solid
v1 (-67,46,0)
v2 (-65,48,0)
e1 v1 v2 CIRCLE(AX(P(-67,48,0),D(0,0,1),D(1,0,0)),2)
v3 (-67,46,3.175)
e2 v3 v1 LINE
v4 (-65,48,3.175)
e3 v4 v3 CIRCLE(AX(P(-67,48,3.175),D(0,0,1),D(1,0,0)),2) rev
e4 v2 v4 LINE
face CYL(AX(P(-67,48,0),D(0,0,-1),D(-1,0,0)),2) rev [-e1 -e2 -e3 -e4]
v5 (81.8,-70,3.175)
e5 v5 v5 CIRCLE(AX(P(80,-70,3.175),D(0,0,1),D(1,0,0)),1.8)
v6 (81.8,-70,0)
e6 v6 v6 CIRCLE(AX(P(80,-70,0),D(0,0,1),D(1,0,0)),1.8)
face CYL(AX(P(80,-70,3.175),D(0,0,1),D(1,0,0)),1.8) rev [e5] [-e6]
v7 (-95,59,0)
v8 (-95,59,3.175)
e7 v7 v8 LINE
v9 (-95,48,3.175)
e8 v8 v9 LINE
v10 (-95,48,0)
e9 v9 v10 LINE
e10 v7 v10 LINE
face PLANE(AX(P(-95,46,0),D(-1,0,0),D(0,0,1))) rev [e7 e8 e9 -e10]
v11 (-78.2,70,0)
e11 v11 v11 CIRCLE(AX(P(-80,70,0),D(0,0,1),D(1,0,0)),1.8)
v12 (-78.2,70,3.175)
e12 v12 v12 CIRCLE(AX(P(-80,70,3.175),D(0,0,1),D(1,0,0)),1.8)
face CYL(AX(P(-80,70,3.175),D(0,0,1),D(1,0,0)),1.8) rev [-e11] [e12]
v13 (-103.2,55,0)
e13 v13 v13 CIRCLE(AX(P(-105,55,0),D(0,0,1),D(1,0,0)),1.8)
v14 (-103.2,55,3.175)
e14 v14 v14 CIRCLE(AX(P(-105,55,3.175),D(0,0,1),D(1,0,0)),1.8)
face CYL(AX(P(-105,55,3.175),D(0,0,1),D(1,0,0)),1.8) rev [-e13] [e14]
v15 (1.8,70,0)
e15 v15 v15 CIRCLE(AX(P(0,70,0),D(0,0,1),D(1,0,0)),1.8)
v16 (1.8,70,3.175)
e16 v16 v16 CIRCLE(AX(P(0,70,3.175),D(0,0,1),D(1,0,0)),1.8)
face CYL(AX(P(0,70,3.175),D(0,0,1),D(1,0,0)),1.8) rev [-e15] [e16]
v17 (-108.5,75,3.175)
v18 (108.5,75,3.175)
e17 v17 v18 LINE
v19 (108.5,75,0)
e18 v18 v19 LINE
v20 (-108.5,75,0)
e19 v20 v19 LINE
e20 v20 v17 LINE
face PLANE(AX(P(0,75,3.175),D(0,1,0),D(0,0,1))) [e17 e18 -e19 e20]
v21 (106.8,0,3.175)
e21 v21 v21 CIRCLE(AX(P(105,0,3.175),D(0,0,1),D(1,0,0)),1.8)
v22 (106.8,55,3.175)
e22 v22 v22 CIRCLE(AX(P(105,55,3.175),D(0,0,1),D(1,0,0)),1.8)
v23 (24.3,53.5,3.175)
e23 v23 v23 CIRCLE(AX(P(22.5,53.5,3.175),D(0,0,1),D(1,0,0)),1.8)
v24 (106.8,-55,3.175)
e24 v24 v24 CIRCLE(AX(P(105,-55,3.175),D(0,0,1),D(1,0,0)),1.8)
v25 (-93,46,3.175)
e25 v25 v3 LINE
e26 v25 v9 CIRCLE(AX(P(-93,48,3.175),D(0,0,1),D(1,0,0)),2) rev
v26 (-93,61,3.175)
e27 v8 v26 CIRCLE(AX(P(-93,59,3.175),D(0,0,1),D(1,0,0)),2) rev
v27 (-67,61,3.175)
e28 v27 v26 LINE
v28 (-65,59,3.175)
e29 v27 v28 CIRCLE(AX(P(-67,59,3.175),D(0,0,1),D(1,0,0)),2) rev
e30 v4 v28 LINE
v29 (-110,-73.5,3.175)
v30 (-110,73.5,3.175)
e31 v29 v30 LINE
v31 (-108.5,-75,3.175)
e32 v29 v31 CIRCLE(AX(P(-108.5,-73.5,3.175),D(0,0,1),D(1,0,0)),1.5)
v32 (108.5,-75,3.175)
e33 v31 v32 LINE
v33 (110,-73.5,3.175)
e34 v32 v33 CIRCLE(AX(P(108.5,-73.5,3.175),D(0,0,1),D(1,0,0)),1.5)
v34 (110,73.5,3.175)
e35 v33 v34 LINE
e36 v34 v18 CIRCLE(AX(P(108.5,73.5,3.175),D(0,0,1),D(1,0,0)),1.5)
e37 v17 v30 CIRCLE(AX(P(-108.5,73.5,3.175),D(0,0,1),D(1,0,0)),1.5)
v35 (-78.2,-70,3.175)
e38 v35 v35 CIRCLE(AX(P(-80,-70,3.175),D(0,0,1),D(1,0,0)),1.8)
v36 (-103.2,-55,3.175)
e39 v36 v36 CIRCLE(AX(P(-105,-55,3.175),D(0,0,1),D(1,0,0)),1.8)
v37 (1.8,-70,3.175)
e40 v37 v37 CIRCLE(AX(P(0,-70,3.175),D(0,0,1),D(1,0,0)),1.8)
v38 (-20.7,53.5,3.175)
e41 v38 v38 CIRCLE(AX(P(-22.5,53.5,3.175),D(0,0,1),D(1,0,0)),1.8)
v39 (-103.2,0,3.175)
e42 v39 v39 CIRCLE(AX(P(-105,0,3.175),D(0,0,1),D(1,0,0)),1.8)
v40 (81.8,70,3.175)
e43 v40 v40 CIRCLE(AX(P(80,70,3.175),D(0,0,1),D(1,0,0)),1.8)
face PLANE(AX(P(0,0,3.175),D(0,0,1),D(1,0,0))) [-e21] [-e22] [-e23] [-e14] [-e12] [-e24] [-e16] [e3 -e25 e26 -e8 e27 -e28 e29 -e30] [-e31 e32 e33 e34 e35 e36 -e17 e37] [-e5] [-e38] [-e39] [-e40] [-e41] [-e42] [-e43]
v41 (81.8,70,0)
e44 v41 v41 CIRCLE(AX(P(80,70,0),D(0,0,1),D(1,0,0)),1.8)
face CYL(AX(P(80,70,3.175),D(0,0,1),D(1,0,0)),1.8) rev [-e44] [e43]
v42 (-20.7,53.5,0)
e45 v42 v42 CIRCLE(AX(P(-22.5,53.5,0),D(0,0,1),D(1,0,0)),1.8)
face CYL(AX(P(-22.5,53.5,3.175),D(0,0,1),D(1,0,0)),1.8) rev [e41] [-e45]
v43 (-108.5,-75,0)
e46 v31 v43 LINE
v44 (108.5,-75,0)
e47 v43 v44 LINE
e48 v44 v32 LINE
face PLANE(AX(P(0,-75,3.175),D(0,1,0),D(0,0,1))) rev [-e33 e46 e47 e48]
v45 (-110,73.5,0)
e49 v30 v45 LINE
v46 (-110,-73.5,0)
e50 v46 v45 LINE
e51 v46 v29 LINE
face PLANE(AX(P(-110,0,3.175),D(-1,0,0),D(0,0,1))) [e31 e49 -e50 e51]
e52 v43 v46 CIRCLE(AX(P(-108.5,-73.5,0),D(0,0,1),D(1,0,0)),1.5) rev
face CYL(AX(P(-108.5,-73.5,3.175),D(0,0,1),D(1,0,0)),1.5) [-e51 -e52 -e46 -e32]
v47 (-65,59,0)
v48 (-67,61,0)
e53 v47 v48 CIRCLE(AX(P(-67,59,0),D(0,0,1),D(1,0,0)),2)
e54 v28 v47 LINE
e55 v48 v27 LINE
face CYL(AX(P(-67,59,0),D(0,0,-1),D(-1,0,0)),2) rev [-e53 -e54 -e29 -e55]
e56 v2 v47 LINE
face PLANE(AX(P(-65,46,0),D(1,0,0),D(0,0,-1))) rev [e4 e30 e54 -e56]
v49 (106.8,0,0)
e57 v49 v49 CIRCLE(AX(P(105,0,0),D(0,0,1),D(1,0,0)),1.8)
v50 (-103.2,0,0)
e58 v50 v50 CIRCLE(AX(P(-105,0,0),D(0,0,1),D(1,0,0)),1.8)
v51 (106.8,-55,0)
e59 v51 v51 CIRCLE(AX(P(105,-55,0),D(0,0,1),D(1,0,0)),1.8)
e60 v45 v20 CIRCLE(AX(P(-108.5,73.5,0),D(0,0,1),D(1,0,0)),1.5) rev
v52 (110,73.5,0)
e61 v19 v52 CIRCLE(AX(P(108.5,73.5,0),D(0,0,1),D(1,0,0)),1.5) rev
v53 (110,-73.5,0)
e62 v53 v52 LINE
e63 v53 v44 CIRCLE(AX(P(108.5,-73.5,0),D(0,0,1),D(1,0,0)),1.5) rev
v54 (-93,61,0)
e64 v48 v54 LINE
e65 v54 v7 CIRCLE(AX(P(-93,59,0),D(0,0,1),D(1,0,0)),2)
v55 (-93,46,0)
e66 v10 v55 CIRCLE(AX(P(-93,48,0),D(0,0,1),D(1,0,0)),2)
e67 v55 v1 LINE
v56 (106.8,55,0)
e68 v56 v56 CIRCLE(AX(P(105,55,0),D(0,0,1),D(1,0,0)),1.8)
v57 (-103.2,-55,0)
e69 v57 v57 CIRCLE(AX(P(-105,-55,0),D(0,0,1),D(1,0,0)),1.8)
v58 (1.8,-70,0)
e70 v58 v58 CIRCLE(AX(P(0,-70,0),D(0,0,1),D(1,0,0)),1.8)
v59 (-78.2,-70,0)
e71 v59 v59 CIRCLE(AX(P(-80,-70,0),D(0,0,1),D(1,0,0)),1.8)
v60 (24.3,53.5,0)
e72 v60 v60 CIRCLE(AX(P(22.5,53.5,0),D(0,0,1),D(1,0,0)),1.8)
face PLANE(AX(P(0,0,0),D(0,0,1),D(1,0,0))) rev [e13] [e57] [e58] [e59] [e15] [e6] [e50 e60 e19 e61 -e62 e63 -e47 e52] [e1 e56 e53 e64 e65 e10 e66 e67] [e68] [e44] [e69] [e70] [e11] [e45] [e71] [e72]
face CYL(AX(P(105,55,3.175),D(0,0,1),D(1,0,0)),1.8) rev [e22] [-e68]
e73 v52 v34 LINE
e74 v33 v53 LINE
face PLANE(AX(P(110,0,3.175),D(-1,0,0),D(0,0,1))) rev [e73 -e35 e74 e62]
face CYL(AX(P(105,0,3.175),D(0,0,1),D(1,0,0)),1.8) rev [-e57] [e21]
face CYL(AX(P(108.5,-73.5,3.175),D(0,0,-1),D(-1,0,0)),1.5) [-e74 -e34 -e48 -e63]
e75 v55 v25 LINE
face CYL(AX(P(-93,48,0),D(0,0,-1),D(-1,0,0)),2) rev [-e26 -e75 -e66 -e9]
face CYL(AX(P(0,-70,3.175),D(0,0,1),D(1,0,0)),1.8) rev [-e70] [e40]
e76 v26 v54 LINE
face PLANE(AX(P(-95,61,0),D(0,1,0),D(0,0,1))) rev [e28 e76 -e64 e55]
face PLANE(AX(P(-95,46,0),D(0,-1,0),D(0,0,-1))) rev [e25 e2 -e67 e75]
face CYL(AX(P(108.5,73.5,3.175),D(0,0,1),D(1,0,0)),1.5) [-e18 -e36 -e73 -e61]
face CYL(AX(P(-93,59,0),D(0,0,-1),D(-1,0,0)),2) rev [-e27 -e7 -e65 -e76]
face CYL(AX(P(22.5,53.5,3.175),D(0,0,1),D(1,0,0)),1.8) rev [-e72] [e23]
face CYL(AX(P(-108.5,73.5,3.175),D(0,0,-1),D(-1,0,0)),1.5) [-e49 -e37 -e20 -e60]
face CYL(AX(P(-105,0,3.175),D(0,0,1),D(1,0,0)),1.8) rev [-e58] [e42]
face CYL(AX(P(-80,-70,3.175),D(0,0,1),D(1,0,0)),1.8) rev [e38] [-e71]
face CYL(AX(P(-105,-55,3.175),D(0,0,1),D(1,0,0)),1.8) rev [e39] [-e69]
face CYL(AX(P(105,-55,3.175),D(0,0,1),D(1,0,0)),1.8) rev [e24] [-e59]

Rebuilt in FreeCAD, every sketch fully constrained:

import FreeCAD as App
import Part
import Sketcher
from FreeCAD import Vector


def edges_at(feature, points):
    """Names of the edges that pass closest to the given points."""
    edges = feature.Shape.Edges
    near = lambda p: min(range(len(edges)), key=lambda i: edges[i].distToShape(Part.Vertex(*p))[0])
    return sorted({f"Edge{near(p) + 1}" for p in points})

doc = App.newDocument("Part")
body = doc.addObject("PartDesign::Body", "Body")

sketch1 = body.newObject("Sketcher::SketchObject", "Sketch")
sketch1.AttachmentSupport = (doc.getObject("XY_Plane"), [""])
sketch1.MapMode = "FlatFace"
sketch1.addGeometry([
    Part.LineSegment(Vector(-110, 75, 0), Vector(-110, -75, 0)),
    Part.LineSegment(Vector(-110, -75, 0), Vector(110, -75, 0)),
    Part.LineSegment(Vector(110, -75, 0), Vector(110, 75, 0)),
    Part.LineSegment(Vector(110, 75, 0), Vector(-110, 75, 0)),
], False)
sketch1.addConstraint([
    Sketcher.Constraint("Coincident", 0, 2, 1, 1),
    Sketcher.Constraint("Coincident", 1, 2, 2, 1),
    Sketcher.Constraint("Coincident", 2, 2, 3, 1),
    Sketcher.Constraint("Coincident", 3, 2, 0, 1),
    Sketcher.Constraint("Vertical", 0),
    Sketcher.Constraint("Horizontal", 1),
    Sketcher.Constraint("Vertical", 2),
    Sketcher.Constraint("Horizontal", 3),
    Sketcher.Constraint("Symmetric", 0, 2, 2, 2, -1, 1),
    Sketcher.Constraint("DistanceX", 1, 1, 1, 2, 220.0),
    Sketcher.Constraint("DistanceY", 0, 2, 0, 1, 150.0),
])
pad1 = body.newObject("PartDesign::Pad", "Pad")
pad1.Profile = sketch1
pad1.Length = 3.175

sketch2 = body.newObject("Sketcher::SketchObject", "Sketch001")
sketch2.AttachmentSupport = (doc.getObject("XY_Plane"), [""])
sketch2.MapMode = "FlatFace"
sketch2.AttachmentOffset = App.Placement(Vector(0, 0, 3.175), App.Rotation())
sketch2.addGeometry([
    Part.Circle(Vector(0, 0, 0), Vector(0, 0, 1), 1.8),
    Part.Circle(Vector(-80, 70, 0), Vector(0, 0, 1), 1.8),
    Part.Circle(Vector(80, 70, 0), Vector(0, 0, 1), 1.8),
    Part.Circle(Vector(0, 70, 0), Vector(0, 0, 1), 1.8),
    Part.Circle(Vector(-105, 55, 0), Vector(0, 0, 1), 1.8),
    Part.Circle(Vector(-105, 0, 0), Vector(0, 0, 1), 1.8),
    Part.Circle(Vector(-105, -55, 0), Vector(0, 0, 1), 1.8),
    Part.Circle(Vector(-80, -70, 0), Vector(0, 0, 1), 1.8),
    Part.Circle(Vector(0, -70, 0), Vector(0, 0, 1), 1.8),
    Part.Circle(Vector(80, -70, 0), Vector(0, 0, 1), 1.8),
    Part.Circle(Vector(105, -55, 0), Vector(0, 0, 1), 1.8),
    Part.Circle(Vector(105, 0, 0), Vector(0, 0, 1), 1.8),
    Part.Circle(Vector(105, 55, 0), Vector(0, 0, 1), 1.8),
], False)
sketch2.addConstraint([
    Sketcher.Constraint("Coincident", 0, 3, -1, 1),
    Sketcher.Constraint("Equal", 0, 1),
    Sketcher.Constraint("Equal", 1, 2),
    Sketcher.Constraint("Equal", 2, 3),
    Sketcher.Constraint("Equal", 3, 4),
    Sketcher.Constraint("Equal", 4, 5),
    Sketcher.Constraint("Equal", 5, 6),
    Sketcher.Constraint("Equal", 6, 7),
    Sketcher.Constraint("Equal", 7, 8),
    Sketcher.Constraint("Equal", 8, 9),
    Sketcher.Constraint("Equal", 9, 10),
    Sketcher.Constraint("Equal", 10, 11),
    Sketcher.Constraint("Equal", 11, 12),
    Sketcher.Constraint("Symmetric", 2, 3, 7, 3, -1, 1),
    Sketcher.Constraint("Symmetric", 3, 3, 8, 3, -1, 1),
    Sketcher.Constraint("Symmetric", 1, 3, 9, 3, -1, 1),
    Sketcher.Constraint("Symmetric", 4, 3, 10, 3, -1, 1),
    Sketcher.Constraint("Symmetric", 5, 3, 11, 3, -1, 1),
    Sketcher.Constraint("Symmetric", 6, 3, 12, 3, -1, 1),
    Sketcher.Constraint("Symmetric", 1, 3, 2, 3, -2),
    Sketcher.Constraint("Symmetric", 6, 3, 10, 3, -2),
    Sketcher.Constraint("PointOnObject", 3, 3, -2),
    Sketcher.Constraint("PointOnObject", 5, 3, -1),
    Sketcher.Constraint("Horizontal", 2, 3, 3, 3),
    Sketcher.Constraint("Vertical", 4, 3, 5, 3),
    Sketcher.Constraint("Diameter", 0, 3.6),
    Sketcher.Constraint("DistanceX", 1, 3, -1, 1, 80.0),
    Sketcher.Constraint("DistanceY", -1, 1, 1, 3, 70.0),
    Sketcher.Constraint("DistanceX", 4, 3, -1, 1, 105.0),
    Sketcher.Constraint("DistanceY", -1, 1, 4, 3, 55.0),
])
doc.recompute()
hole = body.newObject("PartDesign::Hole", "Hole")
hole.Profile = sketch2
hole.ThreadType = "None"
hole.Diameter = 3.6
hole.DepthType = "ThroughAll"

sketch3 = body.newObject("Sketcher::SketchObject", "Sketch002")
sketch3.AttachmentSupport = (doc.getObject("XY_Plane"), [""])
sketch3.MapMode = "FlatFace"
sketch3.AttachmentOffset = App.Placement(Vector(0, 0, 3.175), App.Rotation())
sketch3.addGeometry([
    Part.LineSegment(Vector(-5, 5, 0), Vector(-5, -5, 0)),
    Part.LineSegment(Vector(-5, -5, 0), Vector(5, -5, 0)),
    Part.LineSegment(Vector(5, -5, 0), Vector(5, 5, 0)),
    Part.LineSegment(Vector(5, 5, 0), Vector(-5, 5, 0)),
], False)
sketch3.addConstraint([
    Sketcher.Constraint("Coincident", 0, 2, 1, 1),
    Sketcher.Constraint("Coincident", 1, 2, 2, 1),
    Sketcher.Constraint("Coincident", 2, 2, 3, 1),
    Sketcher.Constraint("Coincident", 3, 2, 0, 1),
    Sketcher.Constraint("Vertical", 0),
    Sketcher.Constraint("Horizontal", 1),
    Sketcher.Constraint("Vertical", 2),
    Sketcher.Constraint("Horizontal", 3),
    Sketcher.Constraint("Symmetric", 0, 2, 2, 2, -1, 1),
    Sketcher.Constraint("Equal", 3, 0),
    Sketcher.Constraint("DistanceX", 1, 1, 1, 2, 10.0),
])
pad2 = body.newObject("PartDesign::Pad", "Pad001")
pad2.Profile = sketch3
pad2.Length = 3.175
pad2.Reversed = True
doc.recompute()

fillet = body.newObject("PartDesign::Fillet", "Fillet")
fillet.Base = (pad2, edges_at(pad2, [
    (-110, -75, 1.587),
    (-110, 75, 1.587),
    (110, 75, 1.587),
    (110, -75, 1.587),
]))
fillet.Radius = 1.5

sketch4 = body.newObject("Sketcher::SketchObject", "Sketch003")
sketch4.AttachmentSupport = (doc.getObject("XY_Plane"), [""])
sketch4.MapMode = "FlatFace"
sketch4.AttachmentOffset = App.Placement(Vector(0, 0, 3.175), App.Rotation())
sketch4.addGeometry([
    Part.LineSegment(Vector(-95, 61, 0), Vector(-95, 46, 0)),
    Part.LineSegment(Vector(-95, 46, 0), Vector(-65, 46, 0)),
    Part.LineSegment(Vector(-65, 46, 0), Vector(-65, 61, 0)),
    Part.LineSegment(Vector(-65, 61, 0), Vector(-95, 61, 0)),
], False)
sketch4.addConstraint([
    Sketcher.Constraint("Coincident", 0, 2, 1, 1),
    Sketcher.Constraint("Coincident", 1, 2, 2, 1),
    Sketcher.Constraint("Coincident", 2, 2, 3, 1),
    Sketcher.Constraint("Coincident", 3, 2, 0, 1),
    Sketcher.Constraint("Vertical", 0),
    Sketcher.Constraint("Horizontal", 1),
    Sketcher.Constraint("Vertical", 2),
    Sketcher.Constraint("Horizontal", 3),
    Sketcher.Constraint("DistanceX", 1, 1, 1, 2, 30.0),
    Sketcher.Constraint("DistanceY", 0, 2, 0, 1, 15.0),
    Sketcher.Constraint("DistanceX", 0, 2, -1, 1, 95.0),
    Sketcher.Constraint("DistanceY", -1, 1, 0, 2, 46.0),
])
pocket1 = body.newObject("PartDesign::Pocket", "Pocket")
pocket1.Profile = sketch4
pocket1.Type = "ThroughAll"

sketch5 = body.newObject("Sketcher::SketchObject", "Sketch004")
sketch5.AttachmentSupport = (doc.getObject("XY_Plane"), [""])
sketch5.MapMode = "FlatFace"
sketch5.AttachmentOffset = App.Placement(Vector(0, 0, 3.175), App.Rotation())
sketch5.addGeometry([
    Part.Circle(Vector(-22.5, 53.5, 0), Vector(0, 0, 1), 1.8),
    Part.Circle(Vector(22.5, 53.5, 0), Vector(0, 0, 1), 1.8),
], False)
sketch5.addConstraint([
    Sketcher.Constraint("Equal", 0, 1),
    Sketcher.Constraint("Symmetric", 0, 3, 1, 3, -2),
    Sketcher.Constraint("Diameter", 0, 3.6),
    Sketcher.Constraint("DistanceX", 0, 3, 1, 3, 45.0),
    Sketcher.Constraint("DistanceY", -1, 1, 0, 3, 53.5),
])
doc.recompute()
hole2 = body.newObject("PartDesign::Hole", "Hole001")
hole2.Profile = sketch5
hole2.ThreadType = "None"
hole2.Diameter = 3.6
hole2.DepthType = "ThroughAll"
doc.recompute()

fillet2 = body.newObject("PartDesign::Fillet", "Fillet001")
fillet2.Base = (hole2, edges_at(hole2, [
    (-65, 61, 1.587),
    (-65, 46, 1.587),
    (-95, 46, 1.587),
    (-95, 61, 1.587),
]))
fillet2.Radius = 2

doc.recompute()
